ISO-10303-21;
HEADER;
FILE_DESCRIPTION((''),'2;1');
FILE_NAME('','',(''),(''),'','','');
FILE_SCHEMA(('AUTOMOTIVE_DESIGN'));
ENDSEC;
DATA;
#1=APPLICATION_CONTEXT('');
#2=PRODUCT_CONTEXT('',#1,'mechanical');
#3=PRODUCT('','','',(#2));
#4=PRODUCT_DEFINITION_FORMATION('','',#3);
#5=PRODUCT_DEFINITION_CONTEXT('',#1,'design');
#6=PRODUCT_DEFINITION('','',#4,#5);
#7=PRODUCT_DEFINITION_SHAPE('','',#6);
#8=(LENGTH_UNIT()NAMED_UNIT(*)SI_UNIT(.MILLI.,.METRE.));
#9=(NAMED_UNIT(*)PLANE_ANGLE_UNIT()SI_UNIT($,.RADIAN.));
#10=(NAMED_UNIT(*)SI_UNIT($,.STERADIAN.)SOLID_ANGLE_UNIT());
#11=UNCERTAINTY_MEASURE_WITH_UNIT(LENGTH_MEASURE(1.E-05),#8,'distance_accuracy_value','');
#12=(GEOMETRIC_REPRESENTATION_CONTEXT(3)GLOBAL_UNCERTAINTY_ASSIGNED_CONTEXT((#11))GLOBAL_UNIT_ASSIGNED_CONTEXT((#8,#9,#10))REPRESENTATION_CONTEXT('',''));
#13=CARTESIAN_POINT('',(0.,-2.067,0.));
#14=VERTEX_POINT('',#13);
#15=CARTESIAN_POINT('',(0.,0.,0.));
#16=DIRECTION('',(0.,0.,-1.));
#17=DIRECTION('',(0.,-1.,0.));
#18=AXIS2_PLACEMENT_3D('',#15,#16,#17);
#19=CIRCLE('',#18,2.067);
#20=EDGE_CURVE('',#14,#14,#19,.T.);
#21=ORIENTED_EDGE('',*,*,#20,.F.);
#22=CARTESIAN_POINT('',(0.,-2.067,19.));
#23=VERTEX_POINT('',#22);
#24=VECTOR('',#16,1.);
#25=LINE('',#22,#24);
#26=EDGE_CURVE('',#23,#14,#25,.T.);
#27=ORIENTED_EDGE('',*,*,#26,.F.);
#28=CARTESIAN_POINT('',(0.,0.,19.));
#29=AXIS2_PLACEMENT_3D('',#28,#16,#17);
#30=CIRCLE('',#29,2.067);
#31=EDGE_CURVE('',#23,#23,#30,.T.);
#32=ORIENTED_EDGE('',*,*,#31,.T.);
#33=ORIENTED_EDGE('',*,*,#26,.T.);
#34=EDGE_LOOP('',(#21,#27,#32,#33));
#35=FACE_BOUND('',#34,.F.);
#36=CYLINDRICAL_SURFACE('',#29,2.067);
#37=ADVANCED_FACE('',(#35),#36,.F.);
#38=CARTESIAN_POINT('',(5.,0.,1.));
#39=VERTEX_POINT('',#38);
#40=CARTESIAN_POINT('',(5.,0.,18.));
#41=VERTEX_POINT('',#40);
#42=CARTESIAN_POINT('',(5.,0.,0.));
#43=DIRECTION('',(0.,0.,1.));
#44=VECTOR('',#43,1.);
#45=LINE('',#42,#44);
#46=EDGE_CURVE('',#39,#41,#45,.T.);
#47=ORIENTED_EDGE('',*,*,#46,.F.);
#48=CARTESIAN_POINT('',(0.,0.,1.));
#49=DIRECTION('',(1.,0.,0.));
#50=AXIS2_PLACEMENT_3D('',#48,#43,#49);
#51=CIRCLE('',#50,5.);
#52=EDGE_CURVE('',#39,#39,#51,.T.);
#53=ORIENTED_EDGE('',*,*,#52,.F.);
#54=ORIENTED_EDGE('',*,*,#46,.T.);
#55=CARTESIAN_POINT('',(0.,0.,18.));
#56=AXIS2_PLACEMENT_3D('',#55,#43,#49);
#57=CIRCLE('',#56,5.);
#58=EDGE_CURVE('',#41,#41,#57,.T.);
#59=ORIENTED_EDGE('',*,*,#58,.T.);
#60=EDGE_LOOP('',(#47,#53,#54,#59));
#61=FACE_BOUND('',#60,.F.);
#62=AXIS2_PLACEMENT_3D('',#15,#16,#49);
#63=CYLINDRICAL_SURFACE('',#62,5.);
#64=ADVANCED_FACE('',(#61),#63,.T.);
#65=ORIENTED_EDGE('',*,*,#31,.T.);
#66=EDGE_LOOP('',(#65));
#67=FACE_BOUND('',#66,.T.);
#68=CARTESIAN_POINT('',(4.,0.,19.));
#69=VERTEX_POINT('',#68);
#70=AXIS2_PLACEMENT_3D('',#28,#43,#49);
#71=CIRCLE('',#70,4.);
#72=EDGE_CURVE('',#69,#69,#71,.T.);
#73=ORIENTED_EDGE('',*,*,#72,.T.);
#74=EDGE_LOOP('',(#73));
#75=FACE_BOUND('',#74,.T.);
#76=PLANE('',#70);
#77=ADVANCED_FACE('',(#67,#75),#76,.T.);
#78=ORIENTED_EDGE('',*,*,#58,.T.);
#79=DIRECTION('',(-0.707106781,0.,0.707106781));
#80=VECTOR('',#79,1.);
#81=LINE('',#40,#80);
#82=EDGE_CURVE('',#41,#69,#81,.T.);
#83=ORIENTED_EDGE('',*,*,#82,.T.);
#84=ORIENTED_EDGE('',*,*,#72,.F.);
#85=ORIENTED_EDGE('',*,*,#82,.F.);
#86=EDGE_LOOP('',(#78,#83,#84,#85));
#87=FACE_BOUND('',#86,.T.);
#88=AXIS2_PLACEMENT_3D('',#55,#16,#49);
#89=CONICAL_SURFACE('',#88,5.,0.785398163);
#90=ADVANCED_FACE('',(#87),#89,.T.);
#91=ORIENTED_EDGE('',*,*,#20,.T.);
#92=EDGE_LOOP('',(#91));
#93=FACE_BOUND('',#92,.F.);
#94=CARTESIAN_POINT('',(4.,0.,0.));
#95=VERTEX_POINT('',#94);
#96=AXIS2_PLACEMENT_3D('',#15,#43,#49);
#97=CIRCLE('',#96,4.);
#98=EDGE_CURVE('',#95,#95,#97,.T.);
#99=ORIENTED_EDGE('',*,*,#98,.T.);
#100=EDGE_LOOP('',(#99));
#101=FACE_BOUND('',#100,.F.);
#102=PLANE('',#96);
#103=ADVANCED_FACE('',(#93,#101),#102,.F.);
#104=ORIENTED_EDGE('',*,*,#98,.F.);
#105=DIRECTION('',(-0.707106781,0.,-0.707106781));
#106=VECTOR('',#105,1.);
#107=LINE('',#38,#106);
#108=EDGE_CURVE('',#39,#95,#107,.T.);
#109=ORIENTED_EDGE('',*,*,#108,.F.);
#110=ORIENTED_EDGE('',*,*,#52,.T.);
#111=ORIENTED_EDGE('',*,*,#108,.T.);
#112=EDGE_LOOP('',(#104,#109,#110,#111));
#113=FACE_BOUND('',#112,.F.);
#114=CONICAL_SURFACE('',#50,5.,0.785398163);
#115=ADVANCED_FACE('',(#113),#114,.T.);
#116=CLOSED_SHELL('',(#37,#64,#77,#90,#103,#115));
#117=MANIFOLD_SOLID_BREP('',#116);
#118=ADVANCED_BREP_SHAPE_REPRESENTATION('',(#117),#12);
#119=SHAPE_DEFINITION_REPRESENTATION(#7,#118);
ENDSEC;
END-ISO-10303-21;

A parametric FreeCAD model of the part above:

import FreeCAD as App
import Part
import Sketcher

V = App.Vector


def edges_at(feature, points):
    """Names of the edges that pass closest to the given points."""
    edges = feature.Shape.Edges
    near = lambda p: min(range(len(edges)), key=lambda i: edges[i].distToShape(Part.Vertex(*p))[0])
    return sorted({f"Edge{near(p) + 1}" for p in points})

doc = App.newDocument("Part")
body = doc.addObject("PartDesign::Body", "Body")

# Sketch on XY plane
sketch1 = body.newObject("Sketcher::SketchObject", "Sketch")
sketch1.AttachmentSupport = (doc.getObject("XY_Plane"), [""])
sketch1.MapMode = "FlatFace"
sketch1.addGeometry(Part.Circle(V(0, 0, 0), V(0, 0, 1), 5), False)
sketch1.addConstraint(Sketcher.Constraint("Coincident", 0, 3, -1, 1))
sketch1.addConstraint(Sketcher.Constraint("Diameter", 0, 10.0))
pad1 = body.newObject("PartDesign::Pad", "Pad")
pad1.Profile = sketch1
pad1.Length = 19

# Sketch on XY plane
sketch2 = body.newObject("Sketcher::SketchObject", "Sketch001")
sketch2.AttachmentSupport = (doc.getObject("XY_Plane"), [""])
sketch2.MapMode = "FlatFace"
sketch2.AttachmentOffset = App.Placement(V(0, 0, 19), App.Rotation())
sketch2.addGeometry(Part.Circle(V(0, 0, 0), V(0, 0, 1), 2.1), False)
sketch2.addConstraint(Sketcher.Constraint("Coincident", 0, 3, -1, 1))
sketch2.addConstraint(Sketcher.Constraint("Diameter", 0, 4.134))
doc.recompute()
hole = body.newObject("PartDesign::Hole", "Hole")
hole.Profile = sketch2
hole.ThreadType = "None"
hole.Diameter = 4.134
hole.DepthType = "ThroughAll"
doc.recompute()

chamfer = body.newObject("PartDesign::Chamfer", "Chamfer")
chamfer.Base = (hole, edges_at(hole, [(-5, 0, 19), (-5, 0, 0)]))
chamfer.Size = 1

doc.recompute()
